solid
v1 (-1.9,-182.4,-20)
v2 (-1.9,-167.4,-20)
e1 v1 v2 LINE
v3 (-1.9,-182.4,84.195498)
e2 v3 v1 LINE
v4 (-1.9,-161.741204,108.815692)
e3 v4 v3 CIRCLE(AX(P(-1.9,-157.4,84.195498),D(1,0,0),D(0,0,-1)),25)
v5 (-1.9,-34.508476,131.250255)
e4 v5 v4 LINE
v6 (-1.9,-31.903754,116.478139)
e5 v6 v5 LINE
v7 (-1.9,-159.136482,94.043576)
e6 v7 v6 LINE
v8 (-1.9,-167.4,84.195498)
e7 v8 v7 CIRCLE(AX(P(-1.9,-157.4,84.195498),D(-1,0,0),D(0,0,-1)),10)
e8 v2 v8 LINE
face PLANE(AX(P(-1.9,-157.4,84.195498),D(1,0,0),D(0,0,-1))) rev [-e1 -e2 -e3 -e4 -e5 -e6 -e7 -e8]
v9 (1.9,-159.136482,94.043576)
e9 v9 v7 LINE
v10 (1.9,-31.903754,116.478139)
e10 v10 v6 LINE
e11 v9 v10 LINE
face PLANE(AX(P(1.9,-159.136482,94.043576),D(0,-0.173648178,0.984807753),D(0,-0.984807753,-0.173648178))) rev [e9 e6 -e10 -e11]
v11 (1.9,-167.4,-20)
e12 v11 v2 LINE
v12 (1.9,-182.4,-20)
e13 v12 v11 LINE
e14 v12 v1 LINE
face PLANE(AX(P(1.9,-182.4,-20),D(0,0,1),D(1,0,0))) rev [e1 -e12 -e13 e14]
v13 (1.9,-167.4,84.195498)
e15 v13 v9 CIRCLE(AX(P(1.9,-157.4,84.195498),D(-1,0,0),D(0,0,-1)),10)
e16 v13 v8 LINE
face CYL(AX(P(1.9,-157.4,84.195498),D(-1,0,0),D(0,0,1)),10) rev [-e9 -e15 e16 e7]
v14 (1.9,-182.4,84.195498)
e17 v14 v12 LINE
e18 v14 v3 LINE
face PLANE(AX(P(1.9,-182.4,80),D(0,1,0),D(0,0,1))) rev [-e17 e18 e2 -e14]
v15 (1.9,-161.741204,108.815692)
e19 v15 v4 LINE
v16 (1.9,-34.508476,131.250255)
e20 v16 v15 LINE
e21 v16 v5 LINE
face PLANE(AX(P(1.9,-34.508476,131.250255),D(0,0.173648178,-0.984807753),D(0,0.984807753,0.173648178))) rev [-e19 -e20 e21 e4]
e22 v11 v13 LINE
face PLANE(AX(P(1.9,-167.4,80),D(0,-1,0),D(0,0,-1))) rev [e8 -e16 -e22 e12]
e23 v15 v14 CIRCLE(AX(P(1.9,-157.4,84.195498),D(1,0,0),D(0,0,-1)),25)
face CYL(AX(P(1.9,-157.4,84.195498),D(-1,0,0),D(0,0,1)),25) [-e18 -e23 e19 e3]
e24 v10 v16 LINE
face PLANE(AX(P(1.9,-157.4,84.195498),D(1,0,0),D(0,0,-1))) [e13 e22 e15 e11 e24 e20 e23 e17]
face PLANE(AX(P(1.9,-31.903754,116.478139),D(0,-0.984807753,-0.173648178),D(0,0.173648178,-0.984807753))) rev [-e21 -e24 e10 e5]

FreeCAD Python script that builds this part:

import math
import FreeCAD as App
import Part
import Sketcher

V = App.Vector
Q = App.Units.Quantity

doc = App.newDocument("Part")
body = doc.addObject("PartDesign::Body", "Body")

# Sketch on YZ plane
sketch1 = doc.addObject("Sketcher::SketchObject", "Sketch")
body.addObject(sketch1)
sketch1.AttachmentSupport = (doc.YZ_Plane, [""])
sketch1.MapMode = "FlatFace"
sketch1.addGeometry([
    Part.LineSegment(V(-182, 84, 0), V(-182, -20, 0)),  # 0
    Part.LineSegment(V(-182, -20, 0), V(-167, -20, 0)),  # 1
    Part.LineSegment(V(-167, -20, 0), V(-167, 84, 0)),  # 2
    Part.ArcOfCircle(Part.Circle(V(-157, 84, 0), V(0, 0, 1), 10), math.radians(100), math.radians(180)),  # 3
    Part.LineSegment(V(-159, 94, 0), V(-32, 116, 0)),  # 4
    Part.LineSegment(V(-32, 116, 0), V(-35, 131, 0)),  # 5
    Part.LineSegment(V(-35, 131, 0), V(-162, 109, 0)),  # 6
    Part.ArcOfCircle(Part.Circle(V(-157, 84, 0), V(0, 0, 1), 25), math.radians(100), math.radians(180)),  # 7
], False)
sketch1.addConstraint([
    Sketcher.Constraint("Coincident", 0, 2, 1, 1),
    Sketcher.Constraint("Coincident", 1, 2, 2, 1),
    Sketcher.Constraint("Tangent", 2, 2, 3, 2),
    Sketcher.Constraint("Tangent", 3, 1, 4, 1),
    Sketcher.Constraint("Coincident", 4, 2, 5, 1),
    Sketcher.Constraint("Coincident", 5, 2, 6, 1),
    Sketcher.Constraint("Tangent", 6, 2, 7, 1),
    Sketcher.Constraint("Tangent", 7, 2, 0, 1),
    Sketcher.Constraint("Vertical", 0),
    Sketcher.Constraint("Horizontal", 1),
    Sketcher.Constraint("Vertical", 2),
    Sketcher.Constraint("Coincident", 7, 3, 3, 3),
    Sketcher.Constraint("Perpendicular", 4, 5),
    Sketcher.Constraint("Perpendicular", 5, 6),
    Sketcher.Constraint("Radius", 3, Q("10 mm")),
    Sketcher.Constraint("Radius", 7, Q("25 mm")),
    Sketcher.Constraint("Angle", 4, Q("10 deg")),
    Sketcher.Constraint("DistanceY", 0, 2, -1, 1, Q("20 mm")),
    Sketcher.Constraint("DistanceX", 3, 3, -1, 1, Q("157.4 mm")),
    Sketcher.Constraint("DistanceY", 0, 2, 0, 1, Q("104.195498 mm")),
    Sketcher.Constraint("Distance", 4, Q("129.195498 mm")),
])
pad1 = doc.addObject("PartDesign::Pad", "Pad")
body.addObject(pad1)
pad1.Profile = sketch1
pad1.Length = 3.8
pad1.Midplane = True

doc.recompute()
